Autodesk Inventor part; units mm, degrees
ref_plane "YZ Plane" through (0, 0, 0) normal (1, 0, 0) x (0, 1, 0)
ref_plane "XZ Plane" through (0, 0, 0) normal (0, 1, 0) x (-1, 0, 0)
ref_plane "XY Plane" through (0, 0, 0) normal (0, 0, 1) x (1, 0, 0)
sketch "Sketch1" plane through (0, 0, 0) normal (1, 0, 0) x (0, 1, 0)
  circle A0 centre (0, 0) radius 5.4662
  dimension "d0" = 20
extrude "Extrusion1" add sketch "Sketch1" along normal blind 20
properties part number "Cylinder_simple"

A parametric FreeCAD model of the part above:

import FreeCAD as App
import Part
import Sketcher
Q = App.Units.Quantity

doc = App.newDocument("Part")
body = doc.addObject("PartDesign::Body", "Body")

# Sketch on YZ plane
sketch1 = body.newObject("Sketcher::SketchObject", "Sketch")
sketch1.AttachmentSupport = (doc.getObject("YZ_Plane"), [""])
sketch1.MapMode = "FlatFace"
sketch1.addGeometry(Part.Circle(App.Vector(0, 0, 0), App.Vector(0, 0, 1), 5), False)
sketch1.addConstraint(Sketcher.Constraint("Coincident", 0, 3, -1, 1))
sketch1.addConstraint(Sketcher.Constraint("Diameter", 0, Q("10.9324 mm")))
pad1 = body.newObject("PartDesign::Pad", "Pad")
pad1.Profile = sketch1
pad1.Length = 20

doc.recompute()
